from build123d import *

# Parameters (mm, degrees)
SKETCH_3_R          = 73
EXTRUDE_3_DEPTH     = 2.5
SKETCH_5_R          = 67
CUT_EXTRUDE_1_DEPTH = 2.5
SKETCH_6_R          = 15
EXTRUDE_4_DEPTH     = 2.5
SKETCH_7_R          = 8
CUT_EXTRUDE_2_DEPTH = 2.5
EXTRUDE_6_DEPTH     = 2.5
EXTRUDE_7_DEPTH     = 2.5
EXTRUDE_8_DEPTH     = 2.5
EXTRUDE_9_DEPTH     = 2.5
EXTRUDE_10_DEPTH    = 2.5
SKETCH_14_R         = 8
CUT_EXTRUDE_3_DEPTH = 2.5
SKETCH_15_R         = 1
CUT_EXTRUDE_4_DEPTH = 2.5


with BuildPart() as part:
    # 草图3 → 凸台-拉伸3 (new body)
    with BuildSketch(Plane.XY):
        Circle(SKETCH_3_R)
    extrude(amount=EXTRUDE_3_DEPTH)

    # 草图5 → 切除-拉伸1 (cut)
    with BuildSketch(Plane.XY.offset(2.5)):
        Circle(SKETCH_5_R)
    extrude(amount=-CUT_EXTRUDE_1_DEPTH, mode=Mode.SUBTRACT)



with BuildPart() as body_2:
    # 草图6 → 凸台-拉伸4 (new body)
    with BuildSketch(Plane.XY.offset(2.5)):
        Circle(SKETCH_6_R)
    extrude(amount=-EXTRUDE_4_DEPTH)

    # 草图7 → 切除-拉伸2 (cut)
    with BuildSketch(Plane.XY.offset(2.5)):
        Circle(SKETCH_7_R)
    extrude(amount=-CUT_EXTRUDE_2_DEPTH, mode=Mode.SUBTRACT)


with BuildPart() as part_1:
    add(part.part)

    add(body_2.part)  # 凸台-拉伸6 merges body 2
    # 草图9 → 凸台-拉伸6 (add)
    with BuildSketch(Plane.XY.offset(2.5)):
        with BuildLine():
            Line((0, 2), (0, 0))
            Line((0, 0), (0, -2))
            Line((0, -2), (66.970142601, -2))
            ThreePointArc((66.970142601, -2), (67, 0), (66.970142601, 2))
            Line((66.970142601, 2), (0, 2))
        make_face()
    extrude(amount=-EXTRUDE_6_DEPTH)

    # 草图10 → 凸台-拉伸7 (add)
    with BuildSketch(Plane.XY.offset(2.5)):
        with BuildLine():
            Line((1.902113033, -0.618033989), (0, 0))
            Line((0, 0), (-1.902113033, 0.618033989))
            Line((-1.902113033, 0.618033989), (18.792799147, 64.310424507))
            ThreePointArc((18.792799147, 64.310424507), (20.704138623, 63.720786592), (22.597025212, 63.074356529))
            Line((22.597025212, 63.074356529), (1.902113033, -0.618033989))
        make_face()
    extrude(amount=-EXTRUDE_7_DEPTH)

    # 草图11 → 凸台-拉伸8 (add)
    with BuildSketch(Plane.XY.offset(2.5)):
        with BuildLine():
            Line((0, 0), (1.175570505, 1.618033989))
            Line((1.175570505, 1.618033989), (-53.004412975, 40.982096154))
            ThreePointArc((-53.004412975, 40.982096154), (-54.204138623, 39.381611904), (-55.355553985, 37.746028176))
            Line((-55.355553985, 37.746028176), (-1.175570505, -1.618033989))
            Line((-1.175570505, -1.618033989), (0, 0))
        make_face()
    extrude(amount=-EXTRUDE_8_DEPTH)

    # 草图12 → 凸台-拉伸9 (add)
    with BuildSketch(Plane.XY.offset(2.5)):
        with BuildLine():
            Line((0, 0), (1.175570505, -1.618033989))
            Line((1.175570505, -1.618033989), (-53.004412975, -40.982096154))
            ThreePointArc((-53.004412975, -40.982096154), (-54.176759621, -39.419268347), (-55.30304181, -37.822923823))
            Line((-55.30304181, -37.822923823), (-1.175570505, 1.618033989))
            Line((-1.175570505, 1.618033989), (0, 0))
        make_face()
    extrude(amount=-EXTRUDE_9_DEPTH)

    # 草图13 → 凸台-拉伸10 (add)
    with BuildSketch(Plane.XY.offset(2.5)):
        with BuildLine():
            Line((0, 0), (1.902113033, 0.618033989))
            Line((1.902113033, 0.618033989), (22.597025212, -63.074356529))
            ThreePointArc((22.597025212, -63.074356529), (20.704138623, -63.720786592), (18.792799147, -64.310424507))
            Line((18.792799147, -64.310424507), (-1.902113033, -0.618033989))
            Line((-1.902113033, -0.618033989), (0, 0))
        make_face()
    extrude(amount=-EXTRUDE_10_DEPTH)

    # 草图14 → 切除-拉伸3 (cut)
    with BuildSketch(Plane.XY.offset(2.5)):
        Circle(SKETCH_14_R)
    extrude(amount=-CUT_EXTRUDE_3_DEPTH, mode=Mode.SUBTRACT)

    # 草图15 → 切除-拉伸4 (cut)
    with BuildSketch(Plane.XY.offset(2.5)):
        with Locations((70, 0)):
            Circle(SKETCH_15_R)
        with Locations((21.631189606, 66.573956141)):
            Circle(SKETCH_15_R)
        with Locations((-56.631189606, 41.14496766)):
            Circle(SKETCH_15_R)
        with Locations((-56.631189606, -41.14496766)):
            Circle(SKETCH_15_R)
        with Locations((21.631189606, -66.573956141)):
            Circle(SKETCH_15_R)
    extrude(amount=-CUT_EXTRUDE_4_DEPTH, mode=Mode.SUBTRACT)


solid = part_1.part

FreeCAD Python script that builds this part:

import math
import FreeCAD as App
import Part
import Sketcher

V = App.Vector
Q = App.Units.Quantity

doc = App.newDocument("Part")
body = doc.addObject("PartDesign::Body", "Body")

# Sketch on XY plane
sketch1 = body.newObject("Sketcher::SketchObject", "Sketch")
sketch1.AttachmentSupport = (doc.getObject("XY_Plane"), [""])
sketch1.MapMode = "FlatFace"
sketch1.addGeometry(Part.Circle(V(0, 0, 0), V(0, 0, 1), 73), False)
sketch1.addConstraint([
    Sketcher.Constraint("Coincident", 0, 3, -1, 1),
    Sketcher.Constraint("Diameter", 0, Q("146 mm")),
])
pad1 = body.newObject("PartDesign::Pad", "Pad")
pad1.Profile = sketch1
pad1.Length = 2.5

# Sketch on XY plane
sketch2 = body.newObject("Sketcher::SketchObject", "Sketch001")
sketch2.AttachmentSupport = (doc.getObject("XY_Plane"), [""])
sketch2.MapMode = "FlatFace"
sketch2.AttachmentOffset = App.Placement(V(0, 0, 2.5), App.Rotation())
sketch2.addGeometry(Part.Circle(V(0, 0, 0), V(0, 0, 1), 67), False)
sketch2.addConstraint([
    Sketcher.Constraint("Coincident", 0, 3, -1, 1),
    Sketcher.Constraint("Diameter", 0, Q("134 mm")),
])
pocket1 = body.newObject("PartDesign::Pocket", "Pocket")
pocket1.Profile = sketch2
pocket1.Length = 2.5
body2 = doc.addObject("PartDesign::Body", "Body001")

# Sketch on XY plane
sketch3 = body2.newObject("Sketcher::SketchObject", "Sketch002")
sketch3.AttachmentSupport = (doc.getObject("XY_Plane001"), [""])
sketch3.MapMode = "FlatFace"
sketch3.AttachmentOffset = App.Placement(V(0, 0, 2.5), App.Rotation())
sketch3.addGeometry(Part.Circle(V(0, 0, 0), V(0, 0, 1), 15), False)
sketch3.addConstraint([
    Sketcher.Constraint("Coincident", 0, 3, -1, 1),
    Sketcher.Constraint("Diameter", 0, Q("30 mm")),
])
pad2 = body2.newObject("PartDesign::Pad", "Pad001")
pad2.Profile = sketch3
pad2.Length = 2.5
pad2.Reversed = True

# Sketch on XY plane
sketch4 = body2.newObject("Sketcher::SketchObject", "Sketch003")
sketch4.AttachmentSupport = (doc.getObject("XY_Plane001"), [""])
sketch4.MapMode = "FlatFace"
sketch4.AttachmentOffset = App.Placement(V(0, 0, 2.5), App.Rotation())
sketch4.addGeometry(Part.Circle(V(0, 0, 0), V(0, 0, 1), 8), False)
sketch4.addConstraint([
    Sketcher.Constraint("Coincident", 0, 3, -1, 1),
    Sketcher.Constraint("Diameter", 0, Q("16 mm")),
])
pocket2 = body2.newObject("PartDesign::Pocket", "Pocket001")
pocket2.Profile = sketch4
pocket2.Length = 2.5
body.AllowCompound = True
doc.recompute()

boolean = body.newObject("PartDesign::Boolean", "Boolean")
boolean.Type = "Fuse"
boolean.addObjects([body2])

# Sketch on XY plane
sketch5 = body.newObject("Sketcher::SketchObject", "Sketch004")
sketch5.AttachmentSupport = (doc.getObject("XY_Plane"), [""])
sketch5.MapMode = "FlatFace"
sketch5.AttachmentOffset = App.Placement(V(0, 0, 2.5), App.Rotation())
sketch5.addGeometry([
    Part.LineSegment(V(0, 2, 0), V(0, -2, 0)),
    Part.LineSegment(V(0, -2, 0), V(67, -2, 0)),
    Part.ArcOfCircle(Part.Circle(V(0, 0, 0), V(0, 0, 1), 67), math.radians(-1.71), math.radians(1.71)),
    Part.LineSegment(V(67, 2, 0), V(0, 2, 0)),
], False)
sketch5.addConstraint([
    Sketcher.Constraint("Coincident", 0, 2, 1, 1),
    Sketcher.Constraint("Coincident", 1, 2, 2, 1),
    Sketcher.Constraint("Coincident", 2, 2, 3, 1),
    Sketcher.Constraint("Coincident", 3, 2, 0, 1),
    Sketcher.Constraint("Vertical", 0),
    Sketcher.Constraint("Horizontal", 1),
    Sketcher.Constraint("Horizontal", 3),
    Sketcher.Constraint("Coincident", 2, 3, -1, 1),
    Sketcher.Constraint("Symmetric", 0, 2, 3, 2, -1, 1),
    Sketcher.Constraint("Radius", 2, Q("67 mm")),
    Sketcher.Constraint("DistanceY", 0, 2, 0, 1, Q("4 mm")),
])
pad3 = body.newObject("PartDesign::Pad", "Pad002")
pad3.Profile = sketch5
pad3.Length = 2.5
pad3.Reversed = True

# Sketch on XY plane
sketch6 = body.newObject("Sketcher::SketchObject", "Sketch005")
sketch6.AttachmentSupport = (doc.getObject("XY_Plane"), [""])
sketch6.MapMode = "FlatFace"
sketch6.AttachmentOffset = App.Placement(V(0, 0, 2.5), App.Rotation())
sketch6.addGeometry([
    Part.LineSegment(V(-1.9, 0.6, 0), V(1.9, -0.6, 0)),
    Part.LineSegment(V(1.9, -0.6, 0), V(22.6, 63.1, 0)),
    Part.ArcOfCircle(Part.Circle(V(0, 0, 0), V(0, 0, 1), 67), math.radians(70.29), math.radians(73.71)),
    Part.LineSegment(V(18.8, 64.3, 0), V(-1.9, 0.6, 0)),
], False)
sketch6.addConstraint([
    Sketcher.Constraint("Coincident", 0, 2, 1, 1),
    Sketcher.Constraint("Coincident", 1, 2, 2, 1),
    Sketcher.Constraint("Coincident", 2, 2, 3, 1),
    Sketcher.Constraint("Coincident", 3, 2, 0, 1),
    Sketcher.Constraint("Coincident", 2, 3, -1, 1),
    Sketcher.Constraint("Symmetric", 0, 2, 3, 2, -1, 1),
    Sketcher.Constraint("Perpendicular", 0, 1),
    Sketcher.Constraint("Parallel", 1, 3),
    Sketcher.Constraint("Radius", 2, Q("67 mm")),
    Sketcher.Constraint("Angle", 0, Q("-18 deg")),
    Sketcher.Constraint("Distance", 0, Q("4 mm")),
])
pad4 = body.newObject("PartDesign::Pad", "Pad003")
pad4.Profile = sketch6
pad4.Length = 2.5
pad4.Reversed = True

# Sketch on XY plane
sketch7 = body.newObject("Sketcher::SketchObject", "Sketch006")
sketch7.AttachmentSupport = (doc.getObject("XY_Plane"), [""])
sketch7.MapMode = "FlatFace"
sketch7.AttachmentOffset = App.Placement(V(0, 0, 2.5), App.Rotation())
sketch7.addGeometry([
    Part.LineSegment(V(1.2, 1.6, 0), V(-53, 41, 0)),
    Part.ArcOfCircle(Part.Circle(V(0, 0, 0), V(0, 0, 1), 67), math.radians(142.29), math.radians(145.71)),
    Part.LineSegment(V(-55.4, 37.7, 0), V(-1.2, -1.6, 0)),
    Part.LineSegment(V(-1.2, -1.6, 0), V(1.2, 1.6, 0)),
], False)
sketch7.addConstraint([
    Sketcher.Constraint("Coincident", 0, 2, 1, 1),
    Sketcher.Constraint("Coincident", 1, 2, 2, 1),
    Sketcher.Constraint("Coincident", 2, 2, 3, 1),
    Sketcher.Constraint("Coincident", 3, 2, 0, 1),
    Sketcher.Constraint("Coincident", 1, 3, -1, 1),
    Sketcher.Constraint("Symmetric", 2, 2, 3, 2, -1, 1),
    Sketcher.Constraint("Parallel", 0, 2),
    Sketcher.Constraint("Perpendicular", 2, 3),
    Sketcher.Constraint("Radius", 1, Q("67 mm")),
    Sketcher.Constraint("Angle", 0, Q("144 deg")),
    Sketcher.Constraint("Distance", 3, Q("4 mm")),
])
pad5 = body.newObject("PartDesign::Pad", "Pad004")
pad5.Profile = sketch7
pad5.Length = 2.5
pad5.Reversed = True

# Sketch on XY plane
sketch8 = body.newObject("Sketcher::SketchObject", "Sketch007")
sketch8.AttachmentSupport = (doc.getObject("XY_Plane"), [""])
sketch8.MapMode = "FlatFace"
sketch8.AttachmentOffset = App.Placement(V(0, 0, 2.5), App.Rotation())
sketch8.addGeometry([
    Part.LineSegment(V(-53, -41, 0), V(1.2, -1.6, 0)),
    Part.LineSegment(V(1.2, -1.6, 0), V(-1.2, 1.6, 0)),
    Part.LineSegment(V(-1.2, 1.6, 0), V(-55.3, -37.8, 0)),
    Part.ArcOfCircle(Part.Circle(V(0, 0, 0), V(0, 0, 1), 67), math.radians(-145.63), math.radians(-142.29)),
], False)
sketch8.addConstraint([
    Sketcher.Constraint("Coincident", 0, 2, 1, 1),
    Sketcher.Constraint("Coincident", 1, 2, 2, 1),
    Sketcher.Constraint("Coincident", 2, 2, 3, 1),
    Sketcher.Constraint("Coincident", 3, 2, 0, 1),
    Sketcher.Constraint("Coincident", 3, 3, -1, 1),
    Sketcher.Constraint("Symmetric", 0, 2, 1, 2, -1, 1),
    Sketcher.Constraint("Perpendicular", 0, 1),
    Sketcher.Constraint("Radius", 3, Q("66.999999 mm")),
    Sketcher.Constraint("Angle", 0, Q("36 deg")),
    Sketcher.Constraint("Distance", 1, Q("4 mm")),
    Sketcher.Constraint("DistanceX", 2, 2, -1, 1, Q("55.303042 mm")),
])
pad6 = body.newObject("PartDesign::Pad", "Pad005")
pad6.Profile = sketch8
pad6.Length = 2.5
pad6.Reversed = True

# Sketch on XY plane
sketch9 = body.newObject("Sketcher::SketchObject", "Sketch008")
sketch9.AttachmentSupport = (doc.getObject("XY_Plane"), [""])
sketch9.MapMode = "FlatFace"
sketch9.AttachmentOffset = App.Placement(V(0, 0, 2.5), App.Rotation())
sketch9.addGeometry([
    Part.LineSegment(V(22.6, -63.1, 0), V(1.9, 0.6, 0)),
    Part.LineSegment(V(1.9, 0.6, 0), V(-1.9, -0.6, 0)),
    Part.LineSegment(V(-1.9, -0.6, 0), V(18.8, -64.3, 0)),
    Part.ArcOfCircle(Part.Circle(V(0, 0, 0), V(0, 0, 1), 67), math.radians(-73.71), math.radians(-70.29)),
], False)
sketch9.addConstraint([
    Sketcher.Constraint("Coincident", 0, 2, 1, 1),
    Sketcher.Constraint("Coincident", 1, 2, 2, 1),
    Sketcher.Constraint("Coincident", 2, 2, 3, 1),
    Sketcher.Constraint("Coincident", 3, 2, 0, 1),
    Sketcher.Constraint("Coincident", 3, 3, -1, 1),
    Sketcher.Constraint("Symmetric", 0, 2, 1, 2, -1, 1),
    Sketcher.Constraint("Perpendicular", 0, 1),
    Sketcher.Constraint("Perpendicular", 1, 2),
    Sketcher.Constraint("Radius", 3, Q("67 mm")),
    Sketcher.Constraint("Angle", 0, Q("108 deg")),
    Sketcher.Constraint("Distance", 1, Q("4 mm")),
])
pad7 = body.newObject("PartDesign::Pad", "Pad006")
pad7.Profile = sketch9
pad7.Length = 2.5
pad7.Reversed = True

# Sketch on XY plane
sketch10 = body.newObject("Sketcher::SketchObject", "Sketch009")
sketch10.AttachmentSupport = (doc.getObject("XY_Plane"), [""])
sketch10.MapMode = "FlatFace"
sketch10.AttachmentOffset = App.Placement(V(0, 0, 2.5), App.Rotation())
sketch10.addGeometry(Part.Circle(V(0, 0, 0), V(0, 0, 1), 8), False)
sketch10.addConstraint([
    Sketcher.Constraint("Coincident", 0, 3, -1, 1),
    Sketcher.Constraint("Diameter", 0, Q("16 mm")),
])
pocket3 = body.newObject("PartDesign::Pocket", "Pocket002")
pocket3.Profile = sketch10
pocket3.Length = 2.5

# Sketch on XY plane
sketch11 = body.newObject("Sketcher::SketchObject", "Sketch010")
sketch11.AttachmentSupport = (doc.getObject("XY_Plane"), [""])
sketch11.MapMode = "FlatFace"
sketch11.AttachmentOffset = App.Placement(V(0, 0, 2.5), App.Rotation())
sketch11.addGeometry([
    Part.Circle(V(70, 0, 0), V(0, 0, 1), 1),  # 0
    Part.Circle(V(21.6, 66.6, 0), V(0, 0, 1), 1),  # 1
    Part.Circle(V(-56.6, 41.1, 0), V(0, 0, 1), 1),  # 2
    Part.Circle(V(-56.6, -41.1, 0), V(0, 0, 1), 1),  # 3
    Part.Circle(V(21.6, -66.6, 0), V(0, 0, 1), 1),  # 4
], False)
sketch11.addConstraint([
    Sketcher.Constraint("Equal", 0, 1),
    Sketcher.Constraint("Equal", 1, 2),
    Sketcher.Constraint("Equal", 2, 3),
    Sketcher.Constraint("Equal", 3, 4),
    Sketcher.Constraint("Symmetric", 2, 3, 3, 3, -1),
    Sketcher.Constraint("Symmetric", 1, 3, 4, 3, -1),
    Sketcher.Constraint("PointOnObject", 0, 3, -1),
    Sketcher.Constraint("Diameter", 0, Q("2 mm")),
    Sketcher.Constraint("DistanceX", -1, 1, 0, 3, Q("70 mm")),
    Sketcher.Constraint("DistanceX", -1, 1, 1, 3, Q("21.63119 mm")),
    Sketcher.Constraint("DistanceX", 2, 3, -1, 1, Q("56.63119 mm")),
    Sketcher.Constraint("DistanceY", 2, 3, 1, 3, Q("25.428988 mm")),
    Sketcher.Constraint("DistanceY", -1, 1, 1, 3, Q("66.573956 mm")),
])
pocket4 = body.newObject("PartDesign::Pocket", "Pocket003")
pocket4.Profile = sketch11
pocket4.Length = 2.5

doc.recompute()
